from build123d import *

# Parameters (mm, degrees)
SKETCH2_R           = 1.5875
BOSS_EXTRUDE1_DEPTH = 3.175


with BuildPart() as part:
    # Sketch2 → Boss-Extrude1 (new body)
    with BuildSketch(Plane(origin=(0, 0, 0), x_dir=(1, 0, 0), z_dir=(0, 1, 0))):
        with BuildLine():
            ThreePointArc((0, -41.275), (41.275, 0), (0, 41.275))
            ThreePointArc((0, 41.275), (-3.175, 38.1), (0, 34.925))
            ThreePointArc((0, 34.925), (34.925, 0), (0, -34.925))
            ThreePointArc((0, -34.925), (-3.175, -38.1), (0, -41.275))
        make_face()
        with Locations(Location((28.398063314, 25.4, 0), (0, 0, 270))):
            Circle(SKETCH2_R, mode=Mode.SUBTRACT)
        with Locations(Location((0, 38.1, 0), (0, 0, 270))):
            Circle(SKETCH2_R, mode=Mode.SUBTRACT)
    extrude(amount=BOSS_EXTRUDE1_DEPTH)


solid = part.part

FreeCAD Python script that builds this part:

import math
import FreeCAD as App
import Part
import Sketcher
from FreeCAD import Vector
Q = App.Units.Quantity

doc = App.newDocument("Part")
body = doc.addObject("PartDesign::Body", "Body")

# Sketch on XZ plane
sketch1 = body.newObject("Sketcher::SketchObject", "Sketch")
sketch1.AttachmentSupport = (doc.getObject("XZ_Plane"), [""])
sketch1.MapMode = "FlatFace"
sketch1.addGeometry([
    Part.ArcOfCircle(Part.Circle(Vector(0, 0, 0), Vector(0, 0, 1), 41.275), math.radians(-90), math.radians(90)),  # 0
    Part.ArcOfCircle(Part.Circle(Vector(0, -38.1, 0), Vector(0, 0, 1), 3.175), math.radians(90), math.radians(270)),  # 1
    Part.ArcOfCircle(Part.Circle(Vector(0, 0, 0), Vector(0, 0, 1), 34.925), math.radians(-90), math.radians(90)),  # 2
    Part.ArcOfCircle(Part.Circle(Vector(0, 38.1, 0), Vector(0, 0, 1), 3.175), math.radians(90), math.radians(270)),  # 3
    Part.Circle(Vector(28.398063, -25.4, 0), Vector(0, 0, 1), 1.5875),  # 4
    Part.Circle(Vector(0, -38.1, 0), Vector(0, 0, 1), 1.5875),  # 5
], False)
sketch1.addConstraint([
    Sketcher.Constraint("Tangent", 0, 1, 1, 2),
    Sketcher.Constraint("Tangent", 1, 1, 2, 1),
    Sketcher.Constraint("Tangent", 2, 2, 3, 2),
    Sketcher.Constraint("Tangent", 3, 1, 0, 2),
    Sketcher.Constraint("Coincident", 0, 3, -1, 1),
    Sketcher.Constraint("Coincident", 2, 3, -1, 1),
    Sketcher.Constraint("Coincident", 5, 3, 1, 3),
    Sketcher.Constraint("Equal", 4, 5),
    Sketcher.Constraint("PointOnObject", 1, 3, -2),
    Sketcher.Constraint("PointOnObject", 3, 3, -2),
    Sketcher.Constraint("Diameter", 4, Q("0.125 in")),
    Sketcher.Constraint("DistanceY", 4, 3, -1, 1, Q("1 in")),
    Sketcher.Constraint("Radius", 0, Q("1.625 in")),
    Sketcher.Constraint("Radius", 1, Q("0.125 in")),
    Sketcher.Constraint("DistanceX", -1, 1, 4, 3, 28.398063),
])
pad1 = body.newObject("PartDesign::Pad", "Pad")
pad1.Profile = sketch1
pad1.Length = Q("0.125 in")
pad1.Reversed = True

doc.recompute()
